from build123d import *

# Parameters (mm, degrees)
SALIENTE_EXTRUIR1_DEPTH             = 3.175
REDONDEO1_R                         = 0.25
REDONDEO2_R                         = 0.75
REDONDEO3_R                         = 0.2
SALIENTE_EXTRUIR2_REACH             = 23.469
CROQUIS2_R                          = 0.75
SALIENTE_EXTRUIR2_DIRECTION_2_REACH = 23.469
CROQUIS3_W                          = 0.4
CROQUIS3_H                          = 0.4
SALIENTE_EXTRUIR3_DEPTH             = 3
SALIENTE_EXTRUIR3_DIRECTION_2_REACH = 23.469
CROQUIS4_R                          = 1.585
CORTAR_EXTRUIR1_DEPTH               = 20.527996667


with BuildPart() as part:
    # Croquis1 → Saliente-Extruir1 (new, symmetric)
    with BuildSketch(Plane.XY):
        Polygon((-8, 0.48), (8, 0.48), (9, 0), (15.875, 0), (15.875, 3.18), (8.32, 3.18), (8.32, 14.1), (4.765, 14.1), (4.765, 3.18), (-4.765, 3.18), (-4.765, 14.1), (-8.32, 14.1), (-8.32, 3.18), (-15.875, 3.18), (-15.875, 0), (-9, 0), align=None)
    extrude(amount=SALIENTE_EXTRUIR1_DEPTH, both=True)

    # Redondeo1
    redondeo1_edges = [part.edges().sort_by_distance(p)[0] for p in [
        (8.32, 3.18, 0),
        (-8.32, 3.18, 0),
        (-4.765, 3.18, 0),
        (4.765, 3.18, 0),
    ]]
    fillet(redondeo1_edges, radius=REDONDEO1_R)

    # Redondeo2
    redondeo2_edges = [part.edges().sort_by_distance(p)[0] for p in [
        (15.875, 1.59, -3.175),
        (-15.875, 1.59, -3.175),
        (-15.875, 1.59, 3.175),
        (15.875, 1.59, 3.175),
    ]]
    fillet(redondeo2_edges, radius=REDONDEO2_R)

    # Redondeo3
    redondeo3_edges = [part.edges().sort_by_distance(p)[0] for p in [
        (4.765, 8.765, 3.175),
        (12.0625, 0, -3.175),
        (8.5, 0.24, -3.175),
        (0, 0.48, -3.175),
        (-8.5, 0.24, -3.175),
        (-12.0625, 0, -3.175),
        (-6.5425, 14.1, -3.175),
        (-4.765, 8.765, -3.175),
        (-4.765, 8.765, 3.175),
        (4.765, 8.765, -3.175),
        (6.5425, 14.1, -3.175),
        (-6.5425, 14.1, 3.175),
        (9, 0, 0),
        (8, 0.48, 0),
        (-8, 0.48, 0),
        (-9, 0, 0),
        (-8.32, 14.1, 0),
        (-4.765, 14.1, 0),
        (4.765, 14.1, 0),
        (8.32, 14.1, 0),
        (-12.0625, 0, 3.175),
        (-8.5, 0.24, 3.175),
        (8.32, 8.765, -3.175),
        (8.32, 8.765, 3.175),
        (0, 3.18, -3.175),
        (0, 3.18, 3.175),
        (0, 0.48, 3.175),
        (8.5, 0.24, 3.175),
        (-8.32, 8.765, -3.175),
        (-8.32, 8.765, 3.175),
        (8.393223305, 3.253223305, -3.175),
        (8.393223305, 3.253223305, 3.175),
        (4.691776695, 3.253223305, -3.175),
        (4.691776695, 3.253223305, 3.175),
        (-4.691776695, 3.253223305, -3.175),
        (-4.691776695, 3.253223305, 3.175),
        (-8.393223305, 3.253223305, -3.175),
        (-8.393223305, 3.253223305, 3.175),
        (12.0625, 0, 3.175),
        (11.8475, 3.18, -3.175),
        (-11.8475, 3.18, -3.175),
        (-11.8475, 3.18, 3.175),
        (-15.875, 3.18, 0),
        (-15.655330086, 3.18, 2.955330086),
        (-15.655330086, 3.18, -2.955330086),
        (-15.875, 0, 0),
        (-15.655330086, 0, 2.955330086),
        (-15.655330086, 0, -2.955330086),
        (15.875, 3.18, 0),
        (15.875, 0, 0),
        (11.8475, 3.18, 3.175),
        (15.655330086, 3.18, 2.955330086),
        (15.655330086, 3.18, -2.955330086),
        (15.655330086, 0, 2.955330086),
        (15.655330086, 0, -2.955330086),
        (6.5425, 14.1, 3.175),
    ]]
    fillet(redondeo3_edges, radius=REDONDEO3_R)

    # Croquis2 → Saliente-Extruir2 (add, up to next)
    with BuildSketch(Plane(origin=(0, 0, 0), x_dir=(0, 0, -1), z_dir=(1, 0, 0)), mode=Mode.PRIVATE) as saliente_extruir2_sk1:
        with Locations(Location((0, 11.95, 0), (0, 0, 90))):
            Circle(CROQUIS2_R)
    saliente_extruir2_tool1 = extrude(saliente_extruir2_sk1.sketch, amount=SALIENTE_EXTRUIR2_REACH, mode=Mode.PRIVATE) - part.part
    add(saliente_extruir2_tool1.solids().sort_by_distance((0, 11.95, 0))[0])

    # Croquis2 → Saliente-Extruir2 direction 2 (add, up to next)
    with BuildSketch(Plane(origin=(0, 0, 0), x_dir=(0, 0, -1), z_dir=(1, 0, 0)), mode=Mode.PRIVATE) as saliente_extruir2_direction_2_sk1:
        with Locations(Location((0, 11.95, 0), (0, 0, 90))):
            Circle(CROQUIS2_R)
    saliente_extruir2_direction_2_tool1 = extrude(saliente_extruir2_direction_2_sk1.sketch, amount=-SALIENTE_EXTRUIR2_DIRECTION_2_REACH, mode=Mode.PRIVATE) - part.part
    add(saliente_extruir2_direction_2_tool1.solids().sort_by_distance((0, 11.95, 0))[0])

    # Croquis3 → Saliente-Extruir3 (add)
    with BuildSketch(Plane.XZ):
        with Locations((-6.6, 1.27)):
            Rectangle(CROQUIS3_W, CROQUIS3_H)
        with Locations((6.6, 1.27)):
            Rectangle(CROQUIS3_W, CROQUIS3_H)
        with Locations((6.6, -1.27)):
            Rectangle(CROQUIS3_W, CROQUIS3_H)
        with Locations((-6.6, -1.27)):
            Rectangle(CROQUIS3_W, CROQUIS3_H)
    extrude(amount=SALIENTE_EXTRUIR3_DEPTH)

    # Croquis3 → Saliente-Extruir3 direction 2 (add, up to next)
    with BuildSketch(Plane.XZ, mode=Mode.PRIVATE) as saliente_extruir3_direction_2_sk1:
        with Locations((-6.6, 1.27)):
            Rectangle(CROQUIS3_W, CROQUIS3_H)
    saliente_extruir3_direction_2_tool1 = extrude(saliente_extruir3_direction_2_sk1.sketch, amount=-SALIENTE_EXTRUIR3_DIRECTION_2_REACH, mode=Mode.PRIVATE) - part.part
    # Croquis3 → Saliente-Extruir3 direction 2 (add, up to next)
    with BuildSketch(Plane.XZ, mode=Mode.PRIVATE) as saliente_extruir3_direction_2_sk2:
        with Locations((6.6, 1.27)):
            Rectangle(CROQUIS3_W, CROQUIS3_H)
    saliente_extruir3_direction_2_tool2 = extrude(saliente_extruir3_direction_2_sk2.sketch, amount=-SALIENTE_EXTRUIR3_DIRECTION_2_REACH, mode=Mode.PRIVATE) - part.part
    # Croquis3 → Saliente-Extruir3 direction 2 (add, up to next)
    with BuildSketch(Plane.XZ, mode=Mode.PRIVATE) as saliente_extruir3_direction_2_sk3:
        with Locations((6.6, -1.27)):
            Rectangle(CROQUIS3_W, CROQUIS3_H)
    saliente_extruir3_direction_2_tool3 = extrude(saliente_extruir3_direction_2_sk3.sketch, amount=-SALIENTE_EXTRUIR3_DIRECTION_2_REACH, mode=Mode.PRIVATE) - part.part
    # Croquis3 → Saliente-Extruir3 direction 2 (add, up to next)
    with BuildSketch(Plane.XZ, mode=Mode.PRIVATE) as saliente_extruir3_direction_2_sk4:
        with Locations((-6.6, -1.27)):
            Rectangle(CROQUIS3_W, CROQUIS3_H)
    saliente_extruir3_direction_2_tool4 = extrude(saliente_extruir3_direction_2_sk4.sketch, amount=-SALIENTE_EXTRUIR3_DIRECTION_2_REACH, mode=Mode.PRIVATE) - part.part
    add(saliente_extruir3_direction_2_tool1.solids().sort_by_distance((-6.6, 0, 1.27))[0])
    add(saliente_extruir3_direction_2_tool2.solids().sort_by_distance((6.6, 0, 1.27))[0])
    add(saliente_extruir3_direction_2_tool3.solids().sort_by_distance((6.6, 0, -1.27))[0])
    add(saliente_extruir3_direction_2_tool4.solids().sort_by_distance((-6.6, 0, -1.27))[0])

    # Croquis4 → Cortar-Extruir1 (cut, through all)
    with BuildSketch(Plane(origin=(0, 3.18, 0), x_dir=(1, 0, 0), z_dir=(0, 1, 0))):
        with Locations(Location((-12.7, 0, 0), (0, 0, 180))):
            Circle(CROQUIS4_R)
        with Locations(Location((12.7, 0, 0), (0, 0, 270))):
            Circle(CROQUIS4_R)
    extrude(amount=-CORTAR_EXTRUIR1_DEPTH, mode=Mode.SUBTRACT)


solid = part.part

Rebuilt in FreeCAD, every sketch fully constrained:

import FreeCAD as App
import Part
import Sketcher

V = App.Vector
Q = App.Units.Quantity


def edges_at(feature, points):
    """Names of the edges that pass closest to the given points."""
    edges = feature.Shape.Edges
    near = lambda p: min(range(len(edges)), key=lambda i: edges[i].distToShape(Part.Vertex(*p))[0])
    return sorted({f"Edge{near(p) + 1}" for p in points})

doc = App.newDocument("Part")
body = doc.addObject("PartDesign::Body", "Body")
body.AllowCompound = True

sketch1 = body.newObject("Sketcher::SketchObject", "Sketch")
sketch1.AttachmentSupport = (doc.getObject("XY_Plane"), [""])
sketch1.MapMode = "FlatFace"
sketch1.addGeometry([
    Part.LineSegment(V(-8, 0.48, 0), V(8, 0.48, 0)),
    Part.LineSegment(V(8, 0.48, 0), V(9, 0, 0)),
    Part.LineSegment(V(9, 0, 0), V(15.875, 0, 0)),
    Part.LineSegment(V(15.875, 0, 0), V(15.875, 3.18, 0)),
    Part.LineSegment(V(15.875, 3.18, 0), V(8.32, 3.18, 0)),
    Part.LineSegment(V(8.32, 3.18, 0), V(8.32, 14.1, 0)),
    Part.LineSegment(V(8.32, 14.1, 0), V(4.765, 14.1, 0)),
    Part.LineSegment(V(4.765, 14.1, 0), V(4.765, 3.18, 0)),
    Part.LineSegment(V(4.765, 3.18, 0), V(-4.765, 3.18, 0)),
    Part.LineSegment(V(-4.765, 3.18, 0), V(-4.765, 14.1, 0)),
    Part.LineSegment(V(-4.765, 14.1, 0), V(-8.32, 14.1, 0)),
    Part.LineSegment(V(-8.32, 14.1, 0), V(-8.32, 3.18, 0)),
    Part.LineSegment(V(-8.32, 3.18, 0), V(-15.875, 3.18, 0)),
    Part.LineSegment(V(-15.875, 3.18, 0), V(-15.875, 0, 0)),
    Part.LineSegment(V(-15.875, 0, 0), V(-9, 0, 0)),
    Part.LineSegment(V(-9, 0, 0), V(-8, 0.48, 0)),
], False)
sketch1.addConstraint([
    Sketcher.Constraint("Coincident", 0, 2, 1, 1),
    Sketcher.Constraint("Coincident", 1, 2, 2, 1),
    Sketcher.Constraint("Coincident", 2, 2, 3, 1),
    Sketcher.Constraint("Coincident", 3, 2, 4, 1),
    Sketcher.Constraint("Coincident", 4, 2, 5, 1),
    Sketcher.Constraint("Coincident", 5, 2, 6, 1),
    Sketcher.Constraint("Coincident", 6, 2, 7, 1),
    Sketcher.Constraint("Coincident", 7, 2, 8, 1),
    Sketcher.Constraint("Coincident", 8, 2, 9, 1),
    Sketcher.Constraint("Coincident", 9, 2, 10, 1),
    Sketcher.Constraint("Coincident", 10, 2, 11, 1),
    Sketcher.Constraint("Coincident", 11, 2, 12, 1),
    Sketcher.Constraint("Coincident", 12, 2, 13, 1),
    Sketcher.Constraint("Coincident", 13, 2, 14, 1),
    Sketcher.Constraint("Coincident", 14, 2, 15, 1),
    Sketcher.Constraint("Coincident", 15, 2, 0, 1),
    Sketcher.Constraint("Horizontal", 0),
    Sketcher.Constraint("Horizontal", 2),
    Sketcher.Constraint("Vertical", 3),
    Sketcher.Constraint("Horizontal", 4),
    Sketcher.Constraint("Vertical", 5),
    Sketcher.Constraint("Horizontal", 6),
    Sketcher.Constraint("Vertical", 7),
    Sketcher.Constraint("Horizontal", 8),
    Sketcher.Constraint("Vertical", 9),
    Sketcher.Constraint("Horizontal", 10),
    Sketcher.Constraint("Vertical", 11),
    Sketcher.Constraint("Horizontal", 12),
    Sketcher.Constraint("Vertical", 13),
    Sketcher.Constraint("Horizontal", 14),
    Sketcher.Constraint("Symmetric", 2, 2, 13, 2, -1, 1),
    Sketcher.Constraint("Symmetric", 6, 2, 9, 2, -2),
    Sketcher.Constraint("Symmetric", 4, 2, 11, 2, -2),
    Sketcher.Constraint("Symmetric", 1, 2, 14, 2, -2),
    Sketcher.Constraint("Horizontal", 4, 2, 7, 2),
    Sketcher.Constraint("Equal", 1, 15),
    Sketcher.Constraint("DistanceX", 0, 1, 0, 2, Q("16 mm")),
    Sketcher.Constraint("DistanceX", -1, 1, 1, 2, Q("9 mm")),
    Sketcher.Constraint("DistanceX", 8, 2, 8, 1, Q("9.53 mm")),
    Sketcher.Constraint("DistanceY", 3, 1, 3, 2, Q("3.18 mm")),
    Sketcher.Constraint("DistanceY", 5, 1, 5, 2, Q("10.92 mm")),
    Sketcher.Constraint("DistanceY", 0, 2, 3, 2, Q("2.7 mm")),
    Sketcher.Constraint("DistanceX", 2, 1, 2, 2, Q("6.875 mm")),
    Sketcher.Constraint("DistanceX", 4, 2, 4, 1, Q("7.555 mm")),
])
pad1 = body.newObject("PartDesign::Pad", "Pad")
pad1.Profile = sketch1
pad1.Length = 6.35
pad1.Midplane = True
doc.recompute()

fillet = body.newObject("PartDesign::Fillet", "Fillet")
fillet.Base = (pad1, edges_at(pad1, [
    (8.32, 3.18, 0),
    (-8.32, 3.18, 0),
    (-4.765, 3.18, 0),
    (4.765, 3.18, 0),
]))
fillet.Radius = 0.25
doc.recompute()

fillet2 = body.newObject("PartDesign::Fillet", "Fillet001")
fillet2.Base = (fillet, edges_at(fillet, [
    (15.875, 1.59, -3.175),
    (-15.875, 1.59, -3.175),
    (-15.875, 1.59, 3.175),
    (15.875, 1.59, 3.175),
]))
fillet2.Radius = 0.75
doc.recompute()

fillet3 = body.newObject("PartDesign::Fillet", "Fillet002")
fillet3.Base = (fillet2, ["Edge1"])
fillet3.UseAllEdges = True
fillet3.Radius = 0.2

sketch2 = body.newObject("Sketcher::SketchObject", "Sketch001")
sketch2.AttachmentSupport = (doc.getObject("YZ_Plane"), [""])
sketch2.MapMode = "FlatFace"
sketch2.addGeometry(Part.Circle(V(11.95, 0, 0), V(0, 0, 1), 0.75), False)
sketch2.addConstraint([
    Sketcher.Constraint("PointOnObject", 0, 3, -1),
    Sketcher.Constraint("Diameter", 0, Q("1.5 mm")),
    Sketcher.Constraint("DistanceX", -1, 1, 0, 3, Q("11.95 mm")),
])
pad2 = body.newObject("PartDesign::Pad", "Pad001")
pad2.Profile = sketch2
pad2.Type = "UpToFirst"

sketch3 = body.newObject("Sketcher::SketchObject", "Sketch002")
sketch3.AttachmentSupport = (doc.getObject("YZ_Plane"), [""])
sketch3.MapMode = "FlatFace"
sketch3.addGeometry(Part.Circle(V(11.95, 0, 0), V(0, 0, 1), 0.75), False)
sketch3.addConstraint([
    Sketcher.Constraint("PointOnObject", 0, 3, -1),
    Sketcher.Constraint("Diameter", 0, Q("1.5 mm")),
    Sketcher.Constraint("DistanceX", -1, 1, 0, 3, Q("11.95 mm")),
])
pad3 = body.newObject("PartDesign::Pad", "Pad002")
pad3.Profile = sketch3
pad3.Type = "UpToFirst"
pad3.Reversed = True

sketch4 = body.newObject("Sketcher::SketchObject", "Sketch003")
sketch4.AttachmentSupport = (doc.getObject("XZ_Plane"), [""])
sketch4.MapMode = "FlatFace"
sketch4.addGeometry([
    Part.LineSegment(V(-6.8, 1.47, 0), V(-6.8, 1.07, 0)),
    Part.LineSegment(V(-6.8, 1.07, 0), V(-6.4, 1.07, 0)),
    Part.LineSegment(V(-6.4, 1.07, 0), V(-6.4, 1.47, 0)),
    Part.LineSegment(V(-6.4, 1.47, 0), V(-6.8, 1.47, 0)),
    Part.LineSegment(V(6.4, 1.47, 0), V(6.4, 1.07, 0)),
    Part.LineSegment(V(6.4, 1.07, 0), V(6.8, 1.07, 0)),
    Part.LineSegment(V(6.8, 1.07, 0), V(6.8, 1.47, 0)),
    Part.LineSegment(V(6.8, 1.47, 0), V(6.4, 1.47, 0)),
    Part.LineSegment(V(6.4, -1.07, 0), V(6.4, -1.47, 0)),
    Part.LineSegment(V(6.4, -1.47, 0), V(6.8, -1.47, 0)),
    Part.LineSegment(V(6.8, -1.47, 0), V(6.8, -1.07, 0)),
    Part.LineSegment(V(6.8, -1.07, 0), V(6.4, -1.07, 0)),
    Part.LineSegment(V(-6.8, -1.07, 0), V(-6.8, -1.47, 0)),
    Part.LineSegment(V(-6.8, -1.47, 0), V(-6.4, -1.47, 0)),
    Part.LineSegment(V(-6.4, -1.47, 0), V(-6.4, -1.07, 0)),
    Part.LineSegment(V(-6.4, -1.07, 0), V(-6.8, -1.07, 0)),
], False)
sketch4.addConstraint([
    Sketcher.Constraint("Coincident", 0, 2, 1, 1),
    Sketcher.Constraint("Coincident", 1, 2, 2, 1),
    Sketcher.Constraint("Coincident", 2, 2, 3, 1),
    Sketcher.Constraint("Coincident", 3, 2, 0, 1),
    Sketcher.Constraint("Coincident", 4, 2, 5, 1),
    Sketcher.Constraint("Coincident", 5, 2, 6, 1),
    Sketcher.Constraint("Coincident", 6, 2, 7, 1),
    Sketcher.Constraint("Coincident", 7, 2, 4, 1),
    Sketcher.Constraint("Coincident", 8, 2, 9, 1),
    Sketcher.Constraint("Coincident", 9, 2, 10, 1),
    Sketcher.Constraint("Coincident", 10, 2, 11, 1),
    Sketcher.Constraint("Coincident", 11, 2, 8, 1),
    Sketcher.Constraint("Coincident", 12, 2, 13, 1),
    Sketcher.Constraint("Coincident", 13, 2, 14, 1),
    Sketcher.Constraint("Coincident", 14, 2, 15, 1),
    Sketcher.Constraint("Coincident", 15, 2, 12, 1),
    Sketcher.Constraint("Vertical", 0),
    Sketcher.Constraint("Horizontal", 1),
    Sketcher.Constraint("Vertical", 2),
    Sketcher.Constraint("Horizontal", 3),
    Sketcher.Constraint("Vertical", 4),
    Sketcher.Constraint("Horizontal", 5),
    Sketcher.Constraint("Vertical", 6),
    Sketcher.Constraint("Horizontal", 7),
    Sketcher.Constraint("Vertical", 8),
    Sketcher.Constraint("Horizontal", 9),
    Sketcher.Constraint("Vertical", 10),
    Sketcher.Constraint("Horizontal", 11),
    Sketcher.Constraint("Vertical", 12),
    Sketcher.Constraint("Horizontal", 13),
    Sketcher.Constraint("Vertical", 14),
    Sketcher.Constraint("Horizontal", 15),
    Sketcher.Constraint("Symmetric", 2, 2, 8, 2, -1, 1),
    Sketcher.Constraint("Symmetric", 0, 2, 10, 2, -1, 1),
    Sketcher.Constraint("Symmetric", 6, 2, 12, 2, -1, 1),
    Sketcher.Constraint("Symmetric", 4, 2, 14, 2, -1, 1),
    Sketcher.Constraint("Symmetric", 1, 2, 4, 2, -2),
    Sketcher.Constraint("Symmetric", 3, 2, 6, 2, -2),
    Sketcher.Constraint("Equal", 15, 0),
    Sketcher.Constraint("DistanceX", 1, 1, 1, 2, Q("0.4 mm")),
    Sketcher.Constraint("DistanceX", 0, 2, -1, 1, Q("6.8 mm")),
    Sketcher.Constraint("DistanceY", -1, 1, 0, 2, Q("1.07 mm")),
])
pad4 = body.newObject("PartDesign::Pad", "Pad003")
pad4.Profile = sketch4
pad4.Length = 3

sketch5 = body.newObject("Sketcher::SketchObject", "Sketch004")
sketch5.AttachmentSupport = (doc.getObject("XZ_Plane"), [""])
sketch5.MapMode = "FlatFace"
sketch5.addGeometry([
    Part.LineSegment(V(-6.8, 1.47, 0), V(-6.8, 1.07, 0)),
    Part.LineSegment(V(-6.8, 1.07, 0), V(-6.4, 1.07, 0)),
    Part.LineSegment(V(-6.4, 1.07, 0), V(-6.4, 1.47, 0)),
    Part.LineSegment(V(-6.4, 1.47, 0), V(-6.8, 1.47, 0)),
], False)
sketch5.addConstraint([
    Sketcher.Constraint("Coincident", 0, 2, 1, 1),
    Sketcher.Constraint("Coincident", 1, 2, 2, 1),
    Sketcher.Constraint("Coincident", 2, 2, 3, 1),
    Sketcher.Constraint("Coincident", 3, 2, 0, 1),
    Sketcher.Constraint("Vertical", 0),
    Sketcher.Constraint("Horizontal", 1),
    Sketcher.Constraint("Vertical", 2),
    Sketcher.Constraint("Horizontal", 3),
    Sketcher.Constraint("Equal", 3, 0),
    Sketcher.Constraint("DistanceX", 1, 1, 1, 2, Q("0.4 mm")),
    Sketcher.Constraint("DistanceX", 0, 2, -1, 1, Q("6.8 mm")),
    Sketcher.Constraint("DistanceY", -1, 1, 0, 2, Q("1.07 mm")),
])
pad5 = body.newObject("PartDesign::Pad", "Pad004")
pad5.Profile = sketch5
pad5.Type = "UpToFirst"
pad5.Reversed = True

sketch6 = body.newObject("Sketcher::SketchObject", "Sketch005")
sketch6.AttachmentSupport = (doc.getObject("XZ_Plane"), [""])
sketch6.MapMode = "FlatFace"
sketch6.addGeometry([
    Part.LineSegment(V(6.4, 1.47, 0), V(6.4, 1.07, 0)),
    Part.LineSegment(V(6.4, 1.07, 0), V(6.8, 1.07, 0)),
    Part.LineSegment(V(6.8, 1.07, 0), V(6.8, 1.47, 0)),
    Part.LineSegment(V(6.8, 1.47, 0), V(6.4, 1.47, 0)),
], False)
sketch6.addConstraint([
    Sketcher.Constraint("Coincident", 0, 2, 1, 1),
    Sketcher.Constraint("Coincident", 1, 2, 2, 1),
    Sketcher.Constraint("Coincident", 2, 2, 3, 1),
    Sketcher.Constraint("Coincident", 3, 2, 0, 1),
    Sketcher.Constraint("Vertical", 0),
    Sketcher.Constraint("Horizontal", 1),
    Sketcher.Constraint("Vertical", 2),
    Sketcher.Constraint("Horizontal", 3),
    Sketcher.Constraint("Equal", 3, 0),
    Sketcher.Constraint("DistanceX", 1, 1, 1, 2, Q("0.4 mm")),
    Sketcher.Constraint("DistanceX", -1, 1, 0, 2, Q("6.4 mm")),
    Sketcher.Constraint("DistanceY", -1, 1, 0, 2, Q("1.07 mm")),
])
pad6 = body.newObject("PartDesign::Pad", "Pad005")
pad6.Profile = sketch6
pad6.Type = "UpToFirst"
pad6.Reversed = True

sketch7 = body.newObject("Sketcher::SketchObject", "Sketch006")
sketch7.AttachmentSupport = (doc.getObject("XZ_Plane"), [""])
sketch7.MapMode = "FlatFace"
sketch7.addGeometry([
    Part.LineSegment(V(6.4, -1.07, 0), V(6.4, -1.47, 0)),
    Part.LineSegment(V(6.4, -1.47, 0), V(6.8, -1.47, 0)),
    Part.LineSegment(V(6.8, -1.47, 0), V(6.8, -1.07, 0)),
    Part.LineSegment(V(6.8, -1.07, 0), V(6.4, -1.07, 0)),
], False)
sketch7.addConstraint([
    Sketcher.Constraint("Coincident", 0, 2, 1, 1),
    Sketcher.Constraint("Coincident", 1, 2, 2, 1),
    Sketcher.Constraint("Coincident", 2, 2, 3, 1),
    Sketcher.Constraint("Coincident", 3, 2, 0, 1),
    Sketcher.Constraint("Vertical", 0),
    Sketcher.Constraint("Horizontal", 1),
    Sketcher.Constraint("Vertical", 2),
    Sketcher.Constraint("Horizontal", 3),
    Sketcher.Constraint("Equal", 3, 0),
    Sketcher.Constraint("DistanceX", 1, 1, 1, 2, Q("0.4 mm")),
    Sketcher.Constraint("DistanceX", -1, 1, 0, 2, Q("6.4 mm")),
    Sketcher.Constraint("DistanceY", 0, 2, -1, 1, Q("1.47 mm")),
])
pad7 = body.newObject("PartDesign::Pad", "Pad006")
pad7.Profile = sketch7
pad7.Type = "UpToFirst"
pad7.Reversed = True

sketch8 = body.newObject("Sketcher::SketchObject", "Sketch007")
sketch8.AttachmentSupport = (doc.getObject("XZ_Plane"), [""])
sketch8.MapMode = "FlatFace"
sketch8.addGeometry([
    Part.LineSegment(V(-6.8, -1.07, 0), V(-6.8, -1.47, 0)),
    Part.LineSegment(V(-6.8, -1.47, 0), V(-6.4, -1.47, 0)),
    Part.LineSegment(V(-6.4, -1.47, 0), V(-6.4, -1.07, 0)),
    Part.LineSegment(V(-6.4, -1.07, 0), V(-6.8, -1.07, 0)),
], False)
sketch8.addConstraint([
    Sketcher.Constraint("Coincident", 0, 2, 1, 1),
    Sketcher.Constraint("Coincident", 1, 2, 2, 1),
    Sketcher.Constraint("Coincident", 2, 2, 3, 1),
    Sketcher.Constraint("Coincident", 3, 2, 0, 1),
    Sketcher.Constraint("Vertical", 0),
    Sketcher.Constraint("Horizontal", 1),
    Sketcher.Constraint("Vertical", 2),
    Sketcher.Constraint("Horizontal", 3),
    Sketcher.Constraint("Equal", 3, 0),
    Sketcher.Constraint("DistanceX", 1, 1, 1, 2, Q("0.4 mm")),
    Sketcher.Constraint("DistanceX", 0, 2, -1, 1, Q("6.8 mm")),
    Sketcher.Constraint("DistanceY", 0, 2, -1, 1, Q("1.47 mm")),
])
pad8 = body.newObject("PartDesign::Pad", "Pad007")
pad8.Profile = sketch8
pad8.Type = "UpToFirst"
pad8.Reversed = True

sketch9 = body.newObject("Sketcher::SketchObject", "Sketch008")
sketch9.AttachmentSupport = (doc.getObject("XZ_Plane"), [""])
sketch9.MapMode = "FlatFace"
sketch9.AttachmentOffset = App.Placement(V(0, 0, -3.18), App.Rotation())
sketch9.addGeometry([
    Part.Circle(V(-12.7, 0, 0), V(0, 0, 1), 1.585),
    Part.Circle(V(12.7, 0, 0), V(0, 0, 1), 1.585),
], False)
sketch9.addConstraint([
    Sketcher.Constraint("Equal", 0, 1),
    Sketcher.Constraint("Symmetric", 0, 3, 1, 3, -1, 1),
    Sketcher.Constraint("PointOnObject", 0, 3, -1),
    Sketcher.Constraint("Diameter", 0, Q("3.17 mm")),
    Sketcher.Constraint("DistanceX", 0, 3, -1, 1, Q("12.7 mm")),
])
pocket1 = body.newObject("PartDesign::Pocket", "Pocket")
pocket1.Profile = sketch9
pocket1.Type = "ThroughAll"
pocket1.Reversed = True

doc.recompute()
